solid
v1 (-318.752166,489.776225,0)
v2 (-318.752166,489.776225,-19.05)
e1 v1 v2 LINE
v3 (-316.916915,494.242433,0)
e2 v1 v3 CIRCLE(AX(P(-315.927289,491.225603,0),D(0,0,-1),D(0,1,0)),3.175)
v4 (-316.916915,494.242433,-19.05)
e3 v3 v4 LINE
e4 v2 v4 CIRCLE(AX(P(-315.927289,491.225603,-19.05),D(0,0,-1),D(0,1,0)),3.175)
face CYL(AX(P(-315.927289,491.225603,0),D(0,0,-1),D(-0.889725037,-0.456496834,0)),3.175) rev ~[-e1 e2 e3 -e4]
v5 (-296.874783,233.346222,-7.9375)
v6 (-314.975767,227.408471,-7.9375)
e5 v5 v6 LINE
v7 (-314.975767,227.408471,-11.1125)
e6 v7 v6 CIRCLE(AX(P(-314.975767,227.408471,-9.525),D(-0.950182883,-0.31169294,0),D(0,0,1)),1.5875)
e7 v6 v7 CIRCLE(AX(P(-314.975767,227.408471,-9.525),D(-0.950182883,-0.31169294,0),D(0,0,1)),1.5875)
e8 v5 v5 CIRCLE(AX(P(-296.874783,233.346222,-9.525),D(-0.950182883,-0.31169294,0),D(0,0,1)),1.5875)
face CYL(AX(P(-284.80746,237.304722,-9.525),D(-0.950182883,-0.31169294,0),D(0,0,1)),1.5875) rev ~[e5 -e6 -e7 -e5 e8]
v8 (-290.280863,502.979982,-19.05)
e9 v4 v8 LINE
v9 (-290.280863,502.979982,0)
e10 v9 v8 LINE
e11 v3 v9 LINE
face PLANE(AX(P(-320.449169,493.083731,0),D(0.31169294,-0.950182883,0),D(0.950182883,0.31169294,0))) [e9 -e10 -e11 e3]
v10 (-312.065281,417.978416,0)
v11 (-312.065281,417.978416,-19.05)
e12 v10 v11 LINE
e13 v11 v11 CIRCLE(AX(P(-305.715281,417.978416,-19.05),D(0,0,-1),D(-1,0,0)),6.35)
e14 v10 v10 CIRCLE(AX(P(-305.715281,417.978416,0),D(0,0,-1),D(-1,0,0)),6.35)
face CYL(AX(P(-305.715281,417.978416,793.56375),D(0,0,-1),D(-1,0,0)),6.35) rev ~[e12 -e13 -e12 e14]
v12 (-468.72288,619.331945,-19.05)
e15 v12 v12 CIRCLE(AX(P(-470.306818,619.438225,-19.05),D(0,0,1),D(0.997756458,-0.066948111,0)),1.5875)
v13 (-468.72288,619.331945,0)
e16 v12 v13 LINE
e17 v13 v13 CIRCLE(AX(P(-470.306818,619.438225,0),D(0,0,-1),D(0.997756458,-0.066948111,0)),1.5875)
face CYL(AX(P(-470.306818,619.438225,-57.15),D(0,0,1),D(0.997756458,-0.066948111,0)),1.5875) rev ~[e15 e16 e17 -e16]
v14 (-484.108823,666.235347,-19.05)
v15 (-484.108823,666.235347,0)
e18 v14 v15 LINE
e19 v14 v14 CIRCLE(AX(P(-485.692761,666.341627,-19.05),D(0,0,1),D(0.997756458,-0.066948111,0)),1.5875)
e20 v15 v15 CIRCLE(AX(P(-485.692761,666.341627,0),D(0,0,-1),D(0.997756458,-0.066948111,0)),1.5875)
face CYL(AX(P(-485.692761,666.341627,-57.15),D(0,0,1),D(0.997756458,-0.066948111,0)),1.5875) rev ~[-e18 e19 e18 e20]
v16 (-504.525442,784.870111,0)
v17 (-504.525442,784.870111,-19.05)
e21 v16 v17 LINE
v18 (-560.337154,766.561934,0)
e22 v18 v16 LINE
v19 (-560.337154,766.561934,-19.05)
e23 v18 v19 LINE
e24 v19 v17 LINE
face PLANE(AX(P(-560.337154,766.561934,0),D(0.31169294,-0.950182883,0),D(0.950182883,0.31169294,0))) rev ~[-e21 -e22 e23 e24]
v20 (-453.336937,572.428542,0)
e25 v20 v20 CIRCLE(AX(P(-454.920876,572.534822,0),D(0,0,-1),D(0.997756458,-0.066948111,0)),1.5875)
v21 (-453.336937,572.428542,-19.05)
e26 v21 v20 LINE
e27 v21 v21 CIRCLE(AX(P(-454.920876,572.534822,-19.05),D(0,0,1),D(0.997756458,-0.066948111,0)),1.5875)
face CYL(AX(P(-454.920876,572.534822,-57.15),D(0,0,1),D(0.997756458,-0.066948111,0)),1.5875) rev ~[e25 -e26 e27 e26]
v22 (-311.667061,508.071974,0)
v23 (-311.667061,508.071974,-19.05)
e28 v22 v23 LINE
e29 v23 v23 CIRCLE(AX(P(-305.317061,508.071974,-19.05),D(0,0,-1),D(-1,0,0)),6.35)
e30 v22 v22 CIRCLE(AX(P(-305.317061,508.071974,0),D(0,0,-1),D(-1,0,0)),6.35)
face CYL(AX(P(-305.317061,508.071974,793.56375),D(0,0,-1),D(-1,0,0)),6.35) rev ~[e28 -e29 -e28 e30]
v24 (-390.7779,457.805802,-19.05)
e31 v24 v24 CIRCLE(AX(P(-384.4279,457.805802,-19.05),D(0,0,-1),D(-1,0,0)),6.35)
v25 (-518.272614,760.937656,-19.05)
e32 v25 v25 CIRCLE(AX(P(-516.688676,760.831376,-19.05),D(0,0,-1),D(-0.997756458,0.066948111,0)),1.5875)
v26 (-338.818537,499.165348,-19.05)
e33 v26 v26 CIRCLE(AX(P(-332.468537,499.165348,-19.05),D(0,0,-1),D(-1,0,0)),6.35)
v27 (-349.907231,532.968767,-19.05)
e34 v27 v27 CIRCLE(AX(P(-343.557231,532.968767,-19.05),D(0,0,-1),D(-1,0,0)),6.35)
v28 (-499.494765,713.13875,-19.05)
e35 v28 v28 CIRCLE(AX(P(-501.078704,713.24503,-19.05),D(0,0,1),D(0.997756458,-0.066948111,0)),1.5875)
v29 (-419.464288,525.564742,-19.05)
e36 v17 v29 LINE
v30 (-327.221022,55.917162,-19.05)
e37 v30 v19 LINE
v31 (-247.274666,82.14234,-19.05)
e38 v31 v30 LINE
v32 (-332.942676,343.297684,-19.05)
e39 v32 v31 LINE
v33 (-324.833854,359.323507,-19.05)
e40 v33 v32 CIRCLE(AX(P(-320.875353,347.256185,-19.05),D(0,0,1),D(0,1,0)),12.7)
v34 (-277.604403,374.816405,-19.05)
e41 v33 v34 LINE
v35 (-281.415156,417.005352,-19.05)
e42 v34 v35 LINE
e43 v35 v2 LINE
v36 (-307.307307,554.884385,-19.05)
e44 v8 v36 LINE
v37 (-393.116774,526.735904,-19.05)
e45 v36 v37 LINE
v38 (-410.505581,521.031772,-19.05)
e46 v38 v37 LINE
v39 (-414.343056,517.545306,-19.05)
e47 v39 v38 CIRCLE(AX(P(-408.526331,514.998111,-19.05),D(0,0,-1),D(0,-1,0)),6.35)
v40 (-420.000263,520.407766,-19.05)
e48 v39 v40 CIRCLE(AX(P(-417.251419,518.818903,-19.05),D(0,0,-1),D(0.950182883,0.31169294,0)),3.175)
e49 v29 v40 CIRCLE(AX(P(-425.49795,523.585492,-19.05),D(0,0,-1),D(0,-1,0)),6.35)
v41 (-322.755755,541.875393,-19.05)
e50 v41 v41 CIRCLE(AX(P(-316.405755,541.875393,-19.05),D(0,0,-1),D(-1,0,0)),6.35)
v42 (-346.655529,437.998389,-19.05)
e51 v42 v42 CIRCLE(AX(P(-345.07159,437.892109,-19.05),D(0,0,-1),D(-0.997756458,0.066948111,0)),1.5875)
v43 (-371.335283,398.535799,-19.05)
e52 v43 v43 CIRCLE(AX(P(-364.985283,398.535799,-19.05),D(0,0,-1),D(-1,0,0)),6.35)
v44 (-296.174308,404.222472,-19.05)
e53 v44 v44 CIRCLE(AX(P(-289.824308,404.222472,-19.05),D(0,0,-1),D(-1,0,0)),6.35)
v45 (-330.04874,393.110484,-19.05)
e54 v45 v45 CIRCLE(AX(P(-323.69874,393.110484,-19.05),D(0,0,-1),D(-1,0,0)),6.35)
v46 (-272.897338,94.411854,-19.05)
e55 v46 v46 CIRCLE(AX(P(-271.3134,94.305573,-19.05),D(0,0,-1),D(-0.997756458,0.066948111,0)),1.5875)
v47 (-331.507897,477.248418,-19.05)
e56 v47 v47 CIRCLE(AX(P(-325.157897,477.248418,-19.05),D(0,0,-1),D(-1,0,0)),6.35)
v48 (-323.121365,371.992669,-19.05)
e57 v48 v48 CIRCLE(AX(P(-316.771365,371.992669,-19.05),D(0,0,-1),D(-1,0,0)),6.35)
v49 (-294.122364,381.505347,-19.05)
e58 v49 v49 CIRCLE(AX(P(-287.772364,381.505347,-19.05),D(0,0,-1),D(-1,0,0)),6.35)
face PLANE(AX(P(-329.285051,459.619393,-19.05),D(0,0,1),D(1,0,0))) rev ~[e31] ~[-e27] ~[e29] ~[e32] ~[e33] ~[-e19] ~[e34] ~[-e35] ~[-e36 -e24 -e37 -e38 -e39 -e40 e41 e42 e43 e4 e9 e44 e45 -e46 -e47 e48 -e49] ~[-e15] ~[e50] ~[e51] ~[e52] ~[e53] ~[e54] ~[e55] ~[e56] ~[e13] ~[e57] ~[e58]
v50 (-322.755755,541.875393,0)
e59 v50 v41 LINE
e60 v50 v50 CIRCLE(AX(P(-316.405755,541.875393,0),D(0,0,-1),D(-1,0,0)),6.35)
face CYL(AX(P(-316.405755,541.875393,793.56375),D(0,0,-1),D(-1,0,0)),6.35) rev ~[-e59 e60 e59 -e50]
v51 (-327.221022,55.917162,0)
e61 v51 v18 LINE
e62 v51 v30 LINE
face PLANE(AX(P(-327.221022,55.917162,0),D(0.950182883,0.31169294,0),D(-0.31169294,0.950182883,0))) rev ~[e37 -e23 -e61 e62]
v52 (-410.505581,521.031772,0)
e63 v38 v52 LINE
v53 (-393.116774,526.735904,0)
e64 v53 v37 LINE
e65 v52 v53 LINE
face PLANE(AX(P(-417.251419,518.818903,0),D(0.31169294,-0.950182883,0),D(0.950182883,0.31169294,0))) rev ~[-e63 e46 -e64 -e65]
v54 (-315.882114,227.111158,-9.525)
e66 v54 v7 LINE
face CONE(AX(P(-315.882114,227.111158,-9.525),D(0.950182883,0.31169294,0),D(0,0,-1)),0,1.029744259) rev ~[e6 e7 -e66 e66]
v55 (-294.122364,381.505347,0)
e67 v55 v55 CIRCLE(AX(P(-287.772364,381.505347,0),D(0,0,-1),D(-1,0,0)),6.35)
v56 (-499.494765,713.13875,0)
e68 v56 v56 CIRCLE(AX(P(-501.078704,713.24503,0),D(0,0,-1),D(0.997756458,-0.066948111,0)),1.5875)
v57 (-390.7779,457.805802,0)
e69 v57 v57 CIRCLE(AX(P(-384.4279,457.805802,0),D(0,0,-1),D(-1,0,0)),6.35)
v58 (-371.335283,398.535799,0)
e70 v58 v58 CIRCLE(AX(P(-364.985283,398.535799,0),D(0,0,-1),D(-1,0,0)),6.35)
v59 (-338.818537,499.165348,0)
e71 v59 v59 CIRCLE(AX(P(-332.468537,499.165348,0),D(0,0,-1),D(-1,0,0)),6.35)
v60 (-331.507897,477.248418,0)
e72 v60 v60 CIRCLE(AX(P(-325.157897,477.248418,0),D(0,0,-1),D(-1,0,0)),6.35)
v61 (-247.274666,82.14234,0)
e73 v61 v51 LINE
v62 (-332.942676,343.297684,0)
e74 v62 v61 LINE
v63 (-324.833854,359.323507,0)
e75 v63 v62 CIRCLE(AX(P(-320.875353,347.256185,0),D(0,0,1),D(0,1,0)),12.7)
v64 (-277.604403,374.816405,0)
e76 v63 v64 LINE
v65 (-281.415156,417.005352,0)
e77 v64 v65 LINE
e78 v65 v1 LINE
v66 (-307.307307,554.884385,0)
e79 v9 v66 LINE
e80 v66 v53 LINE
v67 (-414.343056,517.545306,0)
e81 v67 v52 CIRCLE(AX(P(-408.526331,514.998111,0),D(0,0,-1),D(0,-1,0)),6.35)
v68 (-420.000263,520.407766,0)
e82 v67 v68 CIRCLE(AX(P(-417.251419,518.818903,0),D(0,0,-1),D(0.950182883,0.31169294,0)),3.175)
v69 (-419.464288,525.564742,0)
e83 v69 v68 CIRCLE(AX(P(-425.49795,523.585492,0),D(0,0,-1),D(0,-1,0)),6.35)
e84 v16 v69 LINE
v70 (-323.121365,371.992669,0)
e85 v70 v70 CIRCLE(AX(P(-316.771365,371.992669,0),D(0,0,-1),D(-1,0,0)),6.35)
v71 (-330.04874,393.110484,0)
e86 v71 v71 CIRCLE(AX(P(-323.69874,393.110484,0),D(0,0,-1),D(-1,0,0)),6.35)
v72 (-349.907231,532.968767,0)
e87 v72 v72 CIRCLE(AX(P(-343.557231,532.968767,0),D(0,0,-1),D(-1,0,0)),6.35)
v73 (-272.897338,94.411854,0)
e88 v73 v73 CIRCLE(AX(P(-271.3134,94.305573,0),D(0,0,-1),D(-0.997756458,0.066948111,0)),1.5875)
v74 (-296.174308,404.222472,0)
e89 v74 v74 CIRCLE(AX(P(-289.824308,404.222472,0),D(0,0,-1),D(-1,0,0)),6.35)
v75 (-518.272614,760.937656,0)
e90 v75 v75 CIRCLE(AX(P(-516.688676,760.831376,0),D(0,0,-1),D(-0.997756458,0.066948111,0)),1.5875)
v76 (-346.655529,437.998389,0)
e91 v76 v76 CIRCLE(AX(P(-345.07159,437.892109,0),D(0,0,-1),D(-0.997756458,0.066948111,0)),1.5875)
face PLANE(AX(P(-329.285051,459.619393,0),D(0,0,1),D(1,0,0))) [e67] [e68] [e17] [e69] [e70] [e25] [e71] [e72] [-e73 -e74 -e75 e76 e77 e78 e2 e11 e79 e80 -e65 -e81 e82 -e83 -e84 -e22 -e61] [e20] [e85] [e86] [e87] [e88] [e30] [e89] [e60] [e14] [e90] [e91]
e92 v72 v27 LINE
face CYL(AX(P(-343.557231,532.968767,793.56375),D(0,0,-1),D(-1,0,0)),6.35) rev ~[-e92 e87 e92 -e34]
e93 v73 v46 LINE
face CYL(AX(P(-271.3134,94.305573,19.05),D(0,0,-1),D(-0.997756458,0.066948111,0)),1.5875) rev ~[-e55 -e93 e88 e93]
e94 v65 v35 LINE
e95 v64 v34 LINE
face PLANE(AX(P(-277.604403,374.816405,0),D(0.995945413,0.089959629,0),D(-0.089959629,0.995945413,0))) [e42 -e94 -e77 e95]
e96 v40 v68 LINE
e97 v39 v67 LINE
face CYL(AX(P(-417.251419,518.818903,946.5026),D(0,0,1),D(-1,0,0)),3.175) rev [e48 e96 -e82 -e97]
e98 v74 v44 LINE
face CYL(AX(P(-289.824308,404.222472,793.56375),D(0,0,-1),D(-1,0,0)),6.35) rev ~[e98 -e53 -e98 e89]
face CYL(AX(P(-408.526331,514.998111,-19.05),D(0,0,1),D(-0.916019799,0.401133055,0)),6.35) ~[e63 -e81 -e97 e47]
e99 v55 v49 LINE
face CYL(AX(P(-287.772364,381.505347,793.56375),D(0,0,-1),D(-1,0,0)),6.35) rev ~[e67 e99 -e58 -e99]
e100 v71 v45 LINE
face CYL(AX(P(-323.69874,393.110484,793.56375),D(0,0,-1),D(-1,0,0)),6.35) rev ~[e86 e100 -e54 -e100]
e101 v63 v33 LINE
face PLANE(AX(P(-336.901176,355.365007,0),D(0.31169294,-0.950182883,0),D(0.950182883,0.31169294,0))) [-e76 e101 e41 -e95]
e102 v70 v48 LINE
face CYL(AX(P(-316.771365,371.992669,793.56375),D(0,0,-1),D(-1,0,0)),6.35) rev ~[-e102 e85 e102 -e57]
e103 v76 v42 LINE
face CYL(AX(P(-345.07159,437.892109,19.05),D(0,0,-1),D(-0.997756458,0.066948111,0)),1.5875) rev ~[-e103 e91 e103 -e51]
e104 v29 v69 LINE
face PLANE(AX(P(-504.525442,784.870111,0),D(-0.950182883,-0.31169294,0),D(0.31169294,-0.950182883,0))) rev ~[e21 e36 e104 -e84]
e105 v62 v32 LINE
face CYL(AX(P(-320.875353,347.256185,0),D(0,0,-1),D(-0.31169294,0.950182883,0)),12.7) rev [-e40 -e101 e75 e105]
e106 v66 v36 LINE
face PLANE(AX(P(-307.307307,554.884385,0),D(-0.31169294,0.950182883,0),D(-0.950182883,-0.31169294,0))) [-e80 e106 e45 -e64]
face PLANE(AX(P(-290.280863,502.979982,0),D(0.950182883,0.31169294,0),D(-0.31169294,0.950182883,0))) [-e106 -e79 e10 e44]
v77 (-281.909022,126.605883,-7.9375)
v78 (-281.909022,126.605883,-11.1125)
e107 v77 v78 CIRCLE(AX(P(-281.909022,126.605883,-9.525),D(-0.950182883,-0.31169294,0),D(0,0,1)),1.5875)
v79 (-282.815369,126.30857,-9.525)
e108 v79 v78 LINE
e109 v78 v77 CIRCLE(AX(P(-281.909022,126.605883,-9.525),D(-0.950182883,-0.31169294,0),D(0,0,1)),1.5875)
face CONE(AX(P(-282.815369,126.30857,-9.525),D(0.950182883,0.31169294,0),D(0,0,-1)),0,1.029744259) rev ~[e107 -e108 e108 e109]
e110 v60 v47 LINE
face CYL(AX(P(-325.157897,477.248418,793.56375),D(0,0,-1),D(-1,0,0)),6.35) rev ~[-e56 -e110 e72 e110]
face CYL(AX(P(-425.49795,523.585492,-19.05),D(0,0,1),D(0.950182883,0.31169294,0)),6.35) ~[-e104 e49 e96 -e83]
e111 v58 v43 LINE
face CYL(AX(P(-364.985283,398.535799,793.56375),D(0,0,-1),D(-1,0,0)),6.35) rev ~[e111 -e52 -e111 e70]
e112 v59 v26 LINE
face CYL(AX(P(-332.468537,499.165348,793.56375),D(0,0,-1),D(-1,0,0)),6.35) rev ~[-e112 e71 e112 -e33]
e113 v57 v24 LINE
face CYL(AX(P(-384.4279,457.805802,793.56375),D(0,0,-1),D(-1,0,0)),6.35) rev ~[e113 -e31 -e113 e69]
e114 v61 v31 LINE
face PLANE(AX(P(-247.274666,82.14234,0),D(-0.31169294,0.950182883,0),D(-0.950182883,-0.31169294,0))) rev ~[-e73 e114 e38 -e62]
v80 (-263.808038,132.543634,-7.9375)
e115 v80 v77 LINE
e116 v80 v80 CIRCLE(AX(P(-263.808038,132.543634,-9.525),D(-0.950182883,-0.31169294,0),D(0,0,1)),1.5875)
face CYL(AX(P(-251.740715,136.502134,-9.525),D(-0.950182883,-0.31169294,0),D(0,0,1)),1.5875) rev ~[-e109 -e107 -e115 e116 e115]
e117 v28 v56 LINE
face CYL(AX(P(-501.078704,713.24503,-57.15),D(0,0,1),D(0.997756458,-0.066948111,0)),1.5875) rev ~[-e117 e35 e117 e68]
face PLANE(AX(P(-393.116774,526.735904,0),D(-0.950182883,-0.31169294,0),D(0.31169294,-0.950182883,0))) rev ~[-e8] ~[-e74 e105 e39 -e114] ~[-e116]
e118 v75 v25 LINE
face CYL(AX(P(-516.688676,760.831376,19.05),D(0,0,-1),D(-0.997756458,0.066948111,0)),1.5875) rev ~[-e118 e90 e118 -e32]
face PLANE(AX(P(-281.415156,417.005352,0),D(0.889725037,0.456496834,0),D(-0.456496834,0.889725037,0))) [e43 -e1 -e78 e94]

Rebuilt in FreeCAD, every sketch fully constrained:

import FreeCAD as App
import Part
import Sketcher
Q = App.Units.Quantity


def edges_at(feature, points):
    """Names of the edges that pass closest to the given points."""
    edges = feature.Shape.Edges
    near = lambda p: min(range(len(edges)), key=lambda i: edges[i].distToShape(Part.Vertex(*p))[0])
    return sorted({f"Edge{near(p) + 1}" for p in points})


def add_polygon(sketch, points):
    """Adds a closed chain of lines whose ends are joined by coincident constraints."""
    first, n = sketch.GeometryCount, len(points)
    for a, b in zip(points, points[1:] + points[:1]):
        sketch.addGeometry(Part.LineSegment(App.Vector(*a, 0), App.Vector(*b, 0)), False)
    for i in range(n):
        sketch.addConstraint(Sketcher.Constraint("Coincident", first + i, 2, first + (i + 1) % n, 1))

doc = App.newDocument("Part")
body = doc.addObject("PartDesign::Body", "Body")

# Sketch on XY plane
sketch1 = body.newObject("Sketcher::SketchObject", "Sketch")
sketch1.AttachmentSupport = (doc.getObject("XY_Plane"), [""])
sketch1.MapMode = "FlatFace"
add_polygon(sketch1, [(-327, 56), (-247, 82), (-393, 527), (-417, 519), (-505, 785), (-560, 767)])  # lines 0-5
sketch1.addConstraint(Sketcher.Constraint("Perpendicular", 0, 1))
sketch1.addConstraint(Sketcher.Constraint("Perpendicular", 1, 2))
sketch1.addConstraint(Sketcher.Constraint("Perpendicular", 2, 3))
sketch1.addConstraint(Sketcher.Constraint("Perpendicular", 3, 4))
sketch1.addConstraint(Sketcher.Constraint("Perpendicular", 4, 5))
sketch1.addConstraint(Sketcher.Constraint("Distance", 2, Q("1 in")))
sketch1.addConstraint(Sketcher.Constraint("Distance", 3, Q("280 mm")))
sketch1.addConstraint(Sketcher.Constraint("DistanceY", 2, 2, 1, 2, Q("7.917001 mm")))
sketch1.addConstraint(Sketcher.Constraint("Distance", 1, Q("467.90315 mm")))
sketch1.addConstraint(Sketcher.Constraint("DistanceY", -1, 1, 0, 2, Q("82.14234 mm")))
sketch1.addConstraint(Sketcher.Constraint("DistanceX", 2, 2, -1, 1, Q("417.251419 mm")))
sketch1.addConstraint(Sketcher.Constraint("DistanceX", 5, 2, -1, 1, Q("327.221022 mm")))
pad1 = body.newObject("PartDesign::Pad", "Pad")
pad1.Profile = sketch1
pad1.Length = Q("0.75 in")
pad1.Reversed = True

# Sketch on XY plane
sketch2 = body.newObject("Sketcher::SketchObject", "Sketch001")
sketch2.AttachmentSupport = (doc.getObject("XY_Plane"), [""])
sketch2.MapMode = "FlatFace"
add_polygon(sketch2, [(-393, 527), (-337, 355), (-278, 375), (-281, 417), (-320, 493), (-290, 503), (-307, 555)])  # lines 0-6
sketch2.addConstraint(Sketcher.Constraint("Perpendicular", 0, 1))
sketch2.addConstraint(Sketcher.Constraint("Parallel", 1, 4))
sketch2.addConstraint(Sketcher.Constraint("Perpendicular", 4, 5))
sketch2.addConstraint(Sketcher.Constraint("Perpendicular", 5, 6))
sketch2.addConstraint(Sketcher.Constraint("Distance", 4, Q("1.25 in")))
sketch2.addConstraint(Sketcher.Constraint("Distance", 0, Q("180.355698 mm")))
sketch2.addConstraint(Sketcher.Constraint("Distance", 5, Q("54.625698 mm")))
sketch2.addConstraint(Sketcher.Constraint("DistanceY", 0, 2, 1, 2, Q("19.451398 mm")))
sketch2.addConstraint(Sketcher.Constraint("Distance", 6, Q("90.308369 mm")))
sketch2.addConstraint(Sketcher.Constraint("DistanceX", 3, 2, -1, 1, Q("320.449169 mm")))
sketch2.addConstraint(Sketcher.Constraint("DistanceY", -1, 1, 3, 2, Q("493.083731 mm")))
sketch2.addConstraint(Sketcher.Constraint("DistanceY", -1, 1, 4, 2, Q("502.979982 mm")))
sketch2.addConstraint(Sketcher.Constraint("DistanceX", 0, 2, 2, 2, Q("55.48602 mm")))
sketch2.addConstraint(Sketcher.Constraint("DistanceY", 2, 2, 3, 2, Q("76.078379 mm")))
pad2 = body.newObject("PartDesign::Pad", "Pad001")
pad2.Profile = sketch2
pad2.Length = Q("0.75 in")
pad2.Reversed = True
doc.recompute()

fillet = body.newObject("PartDesign::Fillet", "Fillet")
fillet.Base = (pad2, edges_at(pad2, [(-320.449, 493.084, -9.525)]))
fillet.Radius = Q("0.125 in")
doc.recompute()

fillet2 = body.newObject("PartDesign::Fillet", "Fillet001")
fillet2.Base = (fillet, edges_at(fillet, [(-336.901, 355.365, -9.525)]))
fillet2.Radius = Q("0.5 in")

# Sketch on XY plane
sketch3 = body.newObject("Sketcher::SketchObject", "Sketch002")
sketch3.AttachmentSupport = (doc.getObject("XY_Plane"), [""])
sketch3.MapMode = "FlatFace"
sketch3.AttachmentOffset = App.Placement(App.Vector(0, 0, -0.75 * 25.4), App.Rotation())
sketch3.addGeometry(Part.Circle(App.Vector(-417.3, 518.8, 0), App.Vector(0, 0, 1), 3.2), False)
sketch3.addConstraint(Sketcher.Constraint("Diameter", 0, Q("0.25 in")))
sketch3.addConstraint(Sketcher.Constraint("DistanceX", 0, 3, -1, 1, Q("417.251419 mm")))
sketch3.addConstraint(Sketcher.Constraint("DistanceY", -1, 1, 0, 3, Q("518.818903 mm")))
pocket1 = body.newObject("PartDesign::Pocket", "Pocket")
pocket1.Profile = sketch3
pocket1.Type = "ThroughAll"
pocket1.Midplane = True
doc.recompute()

fillet3 = body.newObject("PartDesign::Fillet", "Fillet002")
fillet3.Base = (pocket1, edges_at(pocket1, [(-418.241, 521.836, -9.525), (-414.235, 519.809, -9.525)]))
fillet3.Radius = Q("0.25 in")

# Sketch on XY plane
sketch4 = body.newObject("Sketcher::SketchObject", "Sketch003")
sketch4.AttachmentSupport = (doc.getObject("XY_Plane"), [""])
sketch4.MapMode = "FlatFace"
sketch4.addGeometry(Part.Circle(App.Vector(-563, 699, 0), App.Vector(0, 0, 1), 6), False)
sketch4.addGeometry(Part.Circle(App.Vector(-504, 518, 0), App.Vector(0, 0, 1), 6), False)
sketch4.addGeometry(Part.Circle(App.Vector(-317, 372, 0), App.Vector(0, 0, 1), 6), False)
sketch4.addGeometry(Part.Circle(App.Vector(-324, 393, 0), App.Vector(0, 0, 1), 6), False)
sketch4.addGeometry(Part.Circle(App.Vector(-290, 404, 0), App.Vector(0, 0, 1), 6), False)
sketch4.addGeometry(Part.Circle(App.Vector(-288, 382, 0), App.Vector(0, 0, 1), 6), False)
sketch4.addGeometry(Part.Circle(App.Vector(-306, 418, 0), App.Vector(0, 0, 1), 6), False)
sketch4.addGeometry(Part.Circle(App.Vector(-365, 399, 0), App.Vector(0, 0, 1), 6), False)
sketch4.addGeometry(Part.Circle(App.Vector(-384, 458, 0), App.Vector(0, 0, 1), 6), False)
sketch4.addGeometry(Part.Circle(App.Vector(-325, 477, 0), App.Vector(0, 0, 1), 6), False)
sketch4.addGeometry(Part.Circle(App.Vector(-332, 499, 0), App.Vector(0, 0, 1), 6), False)
sketch4.addGeometry(Part.Circle(App.Vector(-305, 508, 0), App.Vector(0, 0, 1), 6), False)
sketch4.addGeometry(Part.Circle(App.Vector(-316, 542, 0), App.Vector(0, 0, 1), 6), False)
sketch4.addGeometry(Part.Circle(App.Vector(-344, 533, 0), App.Vector(0, 0, 1), 6), False)
sketch4.addConstraint(Sketcher.Constraint("Equal", 0, 1))
sketch4.addConstraint(Sketcher.Constraint("Equal", 1, 2))
sketch4.addConstraint(Sketcher.Constraint("Equal", 2, 3))
sketch4.addConstraint(Sketcher.Constraint("Equal", 3, 4))
sketch4.addConstraint(Sketcher.Constraint("Equal", 4, 5))
sketch4.addConstraint(Sketcher.Constraint("Equal", 5, 6))
sketch4.addConstraint(Sketcher.Constraint("Equal", 6, 7))
sketch4.addConstraint(Sketcher.Constraint("Equal", 7, 8))
sketch4.addConstraint(Sketcher.Constraint("Equal", 8, 9))
sketch4.addConstraint(Sketcher.Constraint("Equal", 9, 10))
sketch4.addConstraint(Sketcher.Constraint("Equal", 10, 11))
sketch4.addConstraint(Sketcher.Constraint("Equal", 11, 12))
sketch4.addConstraint(Sketcher.Constraint("Equal", 12, 13))
sketch4.addConstraint(Sketcher.Constraint("Diameter", 0, Q("0.5 in")))
sketch4.addConstraint(Sketcher.Constraint("DistanceX", 8, 3, 11, 3, Q("3.1146 in")))
sketch4.addConstraint(Sketcher.Constraint("DistanceY", -1, 1, 7, 3, Q("398.535799 mm")))
sketch4.addConstraint(Sketcher.Constraint("DistanceX", 8, 3, -1, 1, Q("384.4279 mm")))
sketch4.addConstraint(Sketcher.Constraint("DistanceY", -1, 1, 8, 3, Q("457.805802 mm")))
sketch4.addConstraint(Sketcher.Constraint("DistanceX", 0, 3, 3, 3, Q("239.751599 mm")))
sketch4.addConstraint(Sketcher.Constraint("DistanceY", 3, 3, 0, 3, Q("305.434198 mm")))
sketch4.addConstraint(Sketcher.Constraint("DistanceX", 2, 3, 5, 3, Q("28.999 mm")))
sketch4.addConstraint(Sketcher.Constraint("DistanceY", 4, 3, 11, 3, Q("103.849501 mm")))
sketch4.addConstraint(Sketcher.Constraint("DistanceX", 0, 3, -1, 1, Q("563.450339 mm")))
sketch4.addConstraint(Sketcher.Constraint("DistanceY", -1, 1, 2, 3, Q("371.992669 mm")))
sketch4.addConstraint(Sketcher.Constraint("DistanceX", 4, 3, -1, 1, Q("289.824308 mm")))
sketch4.addConstraint(Sketcher.Constraint("DistanceX", 6, 3, -1, 1, Q("305.715281 mm")))
sketch4.addConstraint(Sketcher.Constraint("DistanceY", -1, 1, 9, 3, Q("477.248418 mm")))
sketch4.addConstraint(Sketcher.Constraint("DistanceX", 13, 3, -1, 1, Q("343.557231 mm")))
sketch4.addConstraint(Sketcher.Constraint("DistanceY", 1, 3, 0, 3, Q("181.009839 mm")))
sketch4.addConstraint(Sketcher.Constraint("DistanceX", 1, 3, 2, 3, Q("187.301469 mm")))
sketch4.addConstraint(Sketcher.Constraint("DistanceY", 3, 3, 4, 3, Q("11.111989 mm")))
sketch4.addConstraint(Sketcher.Constraint("DistanceY", 3, 3, 6, 3, Q("24.867932 mm")))
sketch4.addConstraint(Sketcher.Constraint("DistanceY", 5, 3, 6, 3, Q("36.473069 mm")))
sketch4.addConstraint(Sketcher.Constraint("DistanceX", 7, 3, 2, 3, Q("48.213919 mm")))
sketch4.addConstraint(Sketcher.Constraint("DistanceY", 4, 3, 8, 3, Q("53.583329 mm")))
sketch4.addConstraint(Sketcher.Constraint("DistanceX", 9, 3, 4, 3, Q("35.333589 mm")))
sketch4.addConstraint(Sketcher.Constraint("DistanceX", 10, 3, 9, 3, Q("7.310639 mm")))
sketch4.addConstraint(Sketcher.Constraint("DistanceY", 9, 3, 10, 3, Q("21.91693 mm")))
sketch4.addConstraint(Sketcher.Constraint("DistanceY", 11, 3, 12, 3, Q("33.803419 mm")))
sketch4.addConstraint(Sketcher.Constraint("DistanceX", 10, 3, 12, 3, Q("16.062782 mm")))
sketch4.addConstraint(Sketcher.Constraint("DistanceY", 10, 3, 13, 3, Q("33.803419 mm")))
sketch4.addConstraint(Sketcher.Constraint("DistanceX", 1, 3, -1, 1, Q("504.072834 mm")))
doc.recompute()
hole = body.newObject("PartDesign::Hole", "Hole")
hole.Profile = sketch4
hole.ThreadType = "None"
hole.Diameter = Q("0.5 in")
hole.DepthType = "ThroughAll"

# Sketch on XY plane
sketch5 = body.newObject("Sketcher::SketchObject", "Sketch004")
sketch5.AttachmentSupport = (doc.getObject("XY_Plane"), [""])
sketch5.MapMode = "FlatFace"
sketch5.AttachmentOffset = App.Placement(App.Vector(0, 0, 0.75 * 25.4), App.Rotation())
sketch5.addGeometry(Part.Circle(App.Vector(-369.4, 62.1, 0), App.Vector(0, 0, 1), 1.6), False)
sketch5.addGeometry(Part.Circle(App.Vector(-271.3, 94.3, 0), App.Vector(0, 0, 1), 1.6), False)
sketch5.addGeometry(Part.Circle(App.Vector(-345.1, 437.9, 0), App.Vector(0, 0, 1), 1.6), False)
sketch5.addGeometry(Part.Circle(App.Vector(-472.3, 396.2, 0), App.Vector(0, 0, 1), 1.6), False)
sketch5.addGeometry(Part.Circle(App.Vector(-516.7, 760.8, 0), App.Vector(0, 0, 1), 1.6), False)
sketch5.addGeometry(Part.Circle(App.Vector(-590.6, 736.6, 0), App.Vector(0, 0, 1), 1.6), False)
sketch5.addConstraint(Sketcher.Constraint("Equal", 0, 1))
sketch5.addConstraint(Sketcher.Constraint("Equal", 1, 2))
sketch5.addConstraint(Sketcher.Constraint("Equal", 2, 3))
sketch5.addConstraint(Sketcher.Constraint("Equal", 3, 4))
sketch5.addConstraint(Sketcher.Constraint("Equal", 4, 5))
sketch5.addConstraint(Sketcher.Constraint("Diameter", 0, Q("0.125 in")))
sketch5.addConstraint(Sketcher.Constraint("DistanceX", 1, 3, -1, 1, Q("271.3134 mm")))
sketch5.addConstraint(Sketcher.Constraint("DistanceX", 0, 3, -1, 1, Q("369.36074 mm")))
sketch5.addConstraint(Sketcher.Constraint("DistanceX", 2, 3, -1, 1, Q("345.07159 mm")))
sketch5.addConstraint(Sketcher.Constraint("DistanceY", -1, 1, 2, 3, Q("437.892108 mm")))
sketch5.addConstraint(Sketcher.Constraint("DistanceX", 3, 3, -1, 1, Q("472.251279 mm")))
sketch5.addConstraint(Sketcher.Constraint("DistanceY", -1, 1, 3, 3, Q("396.17276 mm")))
sketch5.addConstraint(Sketcher.Constraint("DistanceX", 5, 3, -1, 1, Q("590.601371 mm")))
sketch5.addConstraint(Sketcher.Constraint("DistanceY", -1, 1, 5, 3, Q("736.585448 mm")))
sketch5.addConstraint(Sketcher.Constraint("DistanceY", 0, 3, 1, 3, Q("32.162928 mm")))
sketch5.addConstraint(Sketcher.Constraint("DistanceY", 0, 3, 4, 3, Q("698.688731 mm")))
sketch5.addConstraint(Sketcher.Constraint("DistanceY", -1, 1, 0, 3, Q("62.142645 mm")))
sketch5.addConstraint(Sketcher.Constraint("DistanceX", 4, 3, -1, 1, Q("516.688676 mm")))
doc.recompute()
hole2 = body.newObject("PartDesign::Hole", "Hole001")
hole2.Profile = sketch5
hole2.ThreadType = "None"
hole2.Diameter = Q("0.125 in")
hole2.DepthType = "Dimension"
hole2.Depth = Q("1.5 in")
hole2.DrillPoint = "Angled"
hole2.DrillPointAngle = 118
hole2.HoleCutType = "Countersink"
hole2.HoleCutDiameter = Q("0.4 in")
hole2.HoleCutCountersinkAngle = 82

# Sketch on XY plane
sketch6 = body.newObject("Sketcher::SketchObject", "Sketch005")
sketch6.AttachmentSupport = (doc.getObject("XY_Plane"), [""])
sketch6.MapMode = "FlatFace"
sketch6.AttachmentOffset = App.Placement(App.Vector(0, 0, -2.25 * 25.4), App.Rotation())
sketch6.addGeometry(Part.Circle(App.Vector(-470.3, 619.4, 0), App.Vector(0, 0, 1), 1.6), False)
sketch6.addGeometry(Part.Circle(App.Vector(-501.1, 713.2, 0), App.Vector(0, 0, 1), 1.6), False)
sketch6.addGeometry(Part.Circle(App.Vector(-485.7, 666.3, 0), App.Vector(0, 0, 1), 1.6), False)
sketch6.addGeometry(Part.Circle(App.Vector(-454.9, 572.5, 0), App.Vector(0, 0, 1), 1.6), False)
sketch6.addConstraint(Sketcher.Constraint("Equal", 0, 1))
sketch6.addConstraint(Sketcher.Constraint("Equal", 1, 2))
sketch6.addConstraint(Sketcher.Constraint("Equal", 2, 3))
sketch6.addConstraint(Sketcher.Constraint("Diameter", 0, Q("0.125 in")))
sketch6.addConstraint(Sketcher.Constraint("DistanceX", 0, 3, -1, 1, Q("470.306818 mm")))
sketch6.addConstraint(Sketcher.Constraint("DistanceY", -1, 1, 1, 3, Q("713.245029 mm")))
sketch6.addConstraint(Sketcher.Constraint("DistanceX", 2, 3, -1, 1, Q("485.692761 mm")))
sketch6.addConstraint(Sketcher.Constraint("DistanceY", -1, 1, 3, 3, Q("572.534822 mm")))
sketch6.addConstraint(Sketcher.Constraint("DistanceX", 1, 3, 3, 3, Q("46.157828 mm")))
sketch6.addConstraint(Sketcher.Constraint("DistanceY", -1, 1, 0, 3, Q("619.438224 mm")))
sketch6.addConstraint(Sketcher.Constraint("DistanceX", 1, 3, -1, 1, Q("501.078704 mm")))
sketch6.addConstraint(Sketcher.Constraint("DistanceY", -1, 1, 2, 3, Q("666.341627 mm")))
doc.recompute()
hole3 = body.newObject("PartDesign::Hole", "Hole002")
hole3.Profile = sketch6
hole3.ThreadType = "None"
hole3.Diameter = Q("0.125 in")
hole3.DepthType = "Dimension"
hole3.Depth = Q("2.25 in")
hole3.DrillPoint = "Angled"
hole3.DrillPointAngle = 118
hole3.HoleCutType = "Countersink"
hole3.HoleCutDiameter = Q("0.4 in")
hole3.HoleCutCountersinkAngle = 82
hole3.Reversed = True

# Sketch on an angled plane
sketch7 = body.newObject("Sketcher::SketchObject", "Sketch006")
sketch7.Placement = App.Placement(App.Vector(-186.856283, -61.295341, 0), App.Rotation(App.Vector(0, 0, -1), App.Vector(-0.31169294, 0.950182883, 0), App.Vector(0.950182883, 0.31169294, 0), "ZXY"))
sketch7.addGeometry(Part.Circle(App.Vector(122, 231.2, 0), App.Vector(0, 0, 1), 1.6), False)
sketch7.addGeometry(Part.Circle(App.Vector(122, 95.1, 0), App.Vector(0, 0, 1), 1.6), False)
sketch7.addGeometry(Part.Circle(App.Vector(122, -41.1, 0), App.Vector(0, 0, 1), 1.6), False)
sketch7.addGeometry(Part.Circle(App.Vector(28.6, 324.9, 0), App.Vector(0, 0, 1), 1.6), False)
sketch7.addGeometry(Part.Circle(App.Vector(28.6, 197.6, 0), App.Vector(0, 0, 1), 1.6), False)
sketch7.addGeometry(Part.Circle(App.Vector(9.5, 208.2, 0), App.Vector(0, 0, 1), 1.6), False)
sketch7.addGeometry(Part.Circle(App.Vector(9.5, 314.3, 0), App.Vector(0, 0, 1), 1.6), False)
sketch7.addGeometry(Part.Circle(App.Vector(-115.5, 314.3, 0), App.Vector(0, 0, 1), 1.6), False)
sketch7.addGeometry(Part.Circle(App.Vector(-115.5, 208.2, 0), App.Vector(0, 0, 1), 1.6), False)
sketch7.addGeometry(Part.Circle(App.Vector(-134.5, 197.6, 0), App.Vector(0, 0, 1), 1.6), False)
sketch7.addGeometry(Part.Circle(App.Vector(-134.5, 324.9, 0), App.Vector(0, 0, 1), 1.6), False)
sketch7.addGeometry(Part.Circle(App.Vector(-228, -41.1, 0), App.Vector(0, 0, 1), 1.6), False)
sketch7.addGeometry(Part.Circle(App.Vector(-228, 95.1, 0), App.Vector(0, 0, 1), 1.6), False)
sketch7.addGeometry(Part.Circle(App.Vector(-228, 231.2, 0), App.Vector(0, 0, 1), 1.6), False)
sketch7.addGeometry(Part.Circle(App.Vector(-135.7, 145.6, 0), App.Vector(0, 0, 1), 1.6), False)
sketch7.addGeometry(Part.Circle(App.Vector(-53, 145.6, 0), App.Vector(0, 0, 1), 1.6), False)
sketch7.addGeometry(Part.Circle(App.Vector(29.8, 145.6, 0), App.Vector(0, 0, 1), 1.6), False)
sketch7.addGeometry(Part.Circle(App.Vector(-53, -78, 0), App.Vector(0, 0, 1), 1.6), False)
sketch7.addGeometry(Part.Circle(App.Vector(-135.7, -78, 0), App.Vector(0, 0, 1), 1.6), False)
sketch7.addGeometry(Part.Circle(App.Vector(29.8, -78, 0), App.Vector(0, 0, 1), 1.6), False)
sketch7.addConstraint(Sketcher.Constraint("Equal", 0, 1))
sketch7.addConstraint(Sketcher.Constraint("Equal", 1, 2))
sketch7.addConstraint(Sketcher.Constraint("Equal", 2, 3))
sketch7.addConstraint(Sketcher.Constraint("Equal", 3, 4))
sketch7.addConstraint(Sketcher.Constraint("Equal", 4, 5))
sketch7.addConstraint(Sketcher.Constraint("Equal", 5, 6))
sketch7.addConstraint(Sketcher.Constraint("Equal", 6, 7))
sketch7.addConstraint(Sketcher.Constraint("Equal", 7, 8))
sketch7.addConstraint(Sketcher.Constraint("Equal", 8, 9))
sketch7.addConstraint(Sketcher.Constraint("Equal", 9, 10))
sketch7.addConstraint(Sketcher.Constraint("Equal", 10, 11))
sketch7.addConstraint(Sketcher.Constraint("Equal", 11, 12))
sketch7.addConstraint(Sketcher.Constraint("Equal", 12, 13))
sketch7.addConstraint(Sketcher.Constraint("Equal", 13, 14))
sketch7.addConstraint(Sketcher.Constraint("Equal", 14, 15))
sketch7.addConstraint(Sketcher.Constraint("Equal", 15, 16))
sketch7.addConstraint(Sketcher.Constraint("Equal", 16, 17))
sketch7.addConstraint(Sketcher.Constraint("Equal", 17, 18))
sketch7.addConstraint(Sketcher.Constraint("Equal", 18, 19))
sketch7.addConstraint(Sketcher.Constraint("Horizontal", 6, 3, 7, 3))
sketch7.addConstraint(Sketcher.Constraint("Horizontal", 5, 3, 8, 3))
sketch7.addConstraint(Sketcher.Constraint("Horizontal", 4, 3, 9, 3))
sketch7.addConstraint(Sketcher.Constraint("Horizontal", 3, 3, 10, 3))
sketch7.addConstraint(Sketcher.Constraint("Horizontal", 2, 3, 11, 3))
sketch7.addConstraint(Sketcher.Constraint("Horizontal", 1, 3, 12, 3))
sketch7.addConstraint(Sketcher.Constraint("Horizontal", 0, 3, 13, 3))
sketch7.addConstraint(Sketcher.Constraint("Horizontal", 14, 3, 15, 3))
sketch7.addConstraint(Sketcher.Constraint("Horizontal", 15, 3, 16, 3))
sketch7.addConstraint(Sketcher.Constraint("Horizontal", 17, 3, 18, 3))
sketch7.addConstraint(Sketcher.Constraint("Horizontal", 18, 3, 19, 3))
sketch7.addConstraint(Sketcher.Constraint("Vertical", 0, 3, 1, 3))
sketch7.addConstraint(Sketcher.Constraint("Vertical", 1, 3, 2, 3))
sketch7.addConstraint(Sketcher.Constraint("Vertical", 3, 3, 4, 3))
sketch7.addConstraint(Sketcher.Constraint("Vertical", 5, 3, 6, 3))
sketch7.addConstraint(Sketcher.Constraint("Vertical", 7, 3, 8, 3))
sketch7.addConstraint(Sketcher.Constraint("Vertical", 9, 3, 10, 3))
sketch7.addConstraint(Sketcher.Constraint("Vertical", 11, 3, 12, 3))
sketch7.addConstraint(Sketcher.Constraint("Vertical", 12, 3, 13, 3))
sketch7.addConstraint(Sketcher.Constraint("Vertical", 15, 3, 17, 3))
sketch7.addConstraint(Sketcher.Constraint("Vertical", 14, 3, 18, 3))
sketch7.addConstraint(Sketcher.Constraint("Vertical", 16, 3, 19, 3))
sketch7.addConstraint(Sketcher.Constraint("Diameter", 0, Q("0.125 in")))
sketch7.addConstraint(Sketcher.Constraint("DistanceX", 5, 3, 4, 3, Q("0.75 in")))
sketch7.addConstraint(Sketcher.Constraint("DistanceX", 9, 3, 8, 3, Q("0.75 in")))
sketch7.addConstraint(Sketcher.Constraint("DistanceX", -1, 1, 3, 3, Q("1.125 in")))
sketch7.addConstraint(Sketcher.Constraint("DistanceX", -1, 1, 0, 3, Q("122.025 mm")))
sketch7.addConstraint(Sketcher.Constraint("DistanceX", 7, 3, -1, 1, Q("115.475 mm")))
sketch7.addConstraint(Sketcher.Constraint("DistanceX", 11, 3, -1, 1, Q("227.975 mm")))
sketch7.addConstraint(Sketcher.Constraint("DistanceX", 14, 3, -1, 1, Q("135.7125 mm")))
sketch7.addConstraint(Sketcher.Constraint("DistanceX", 15, 3, -1, 1, Q("52.975 mm")))
sketch7.addConstraint(Sketcher.Constraint("DistanceX", -1, 1, 16, 3, Q("29.7625 mm")))
sketch7.addConstraint(Sketcher.Constraint("DistanceY", 5, 3, 0, 3, Q("23.007602 mm")))
sketch7.addConstraint(Sketcher.Constraint("DistanceY", -1, 1, 4, 3, Q("197.559039 mm")))
sketch7.addConstraint(Sketcher.Constraint("DistanceY", -1, 1, 6, 3, Q("314.255359 mm")))
sketch7.addConstraint(Sketcher.Constraint("DistanceY", 2, 3, 0, 3, Q("272.247489 mm")))
sketch7.addConstraint(Sketcher.Constraint("DistanceY", 0, 3, 3, 3, Q("93.688719 mm")))
sketch7.addConstraint(Sketcher.Constraint("DistanceY", 4, 3, 0, 3, Q("33.616358 mm")))
sketch7.addConstraint(Sketcher.Constraint("DistanceY", 12, 3, 14, 3, Q("50.547361 mm")))
sketch7.addConstraint(Sketcher.Constraint("DistanceY", 17, 3, 15, 3, Q("223.64685 mm")))
sketch7.addConstraint(Sketcher.Constraint("DistanceY", -1, 1, 1, 3, Q("95.051652 mm")))
doc.recompute()
hole4 = body.newObject("PartDesign::Hole", "Hole003")
hole4.Profile = sketch7
hole4.ThreadType = "None"
hole4.Diameter = Q("0.125 in")
hole4.DepthType = "Dimension"
hole4.Depth = Q("1.25 in")
hole4.DrillPoint = "Angled"
hole4.DrillPointAngle = 118
hole4.HoleCutType = "Countersink"
hole4.HoleCutDiameter = Q("0.4 in")
hole4.HoleCutCountersinkAngle = 82

doc.recompute()
